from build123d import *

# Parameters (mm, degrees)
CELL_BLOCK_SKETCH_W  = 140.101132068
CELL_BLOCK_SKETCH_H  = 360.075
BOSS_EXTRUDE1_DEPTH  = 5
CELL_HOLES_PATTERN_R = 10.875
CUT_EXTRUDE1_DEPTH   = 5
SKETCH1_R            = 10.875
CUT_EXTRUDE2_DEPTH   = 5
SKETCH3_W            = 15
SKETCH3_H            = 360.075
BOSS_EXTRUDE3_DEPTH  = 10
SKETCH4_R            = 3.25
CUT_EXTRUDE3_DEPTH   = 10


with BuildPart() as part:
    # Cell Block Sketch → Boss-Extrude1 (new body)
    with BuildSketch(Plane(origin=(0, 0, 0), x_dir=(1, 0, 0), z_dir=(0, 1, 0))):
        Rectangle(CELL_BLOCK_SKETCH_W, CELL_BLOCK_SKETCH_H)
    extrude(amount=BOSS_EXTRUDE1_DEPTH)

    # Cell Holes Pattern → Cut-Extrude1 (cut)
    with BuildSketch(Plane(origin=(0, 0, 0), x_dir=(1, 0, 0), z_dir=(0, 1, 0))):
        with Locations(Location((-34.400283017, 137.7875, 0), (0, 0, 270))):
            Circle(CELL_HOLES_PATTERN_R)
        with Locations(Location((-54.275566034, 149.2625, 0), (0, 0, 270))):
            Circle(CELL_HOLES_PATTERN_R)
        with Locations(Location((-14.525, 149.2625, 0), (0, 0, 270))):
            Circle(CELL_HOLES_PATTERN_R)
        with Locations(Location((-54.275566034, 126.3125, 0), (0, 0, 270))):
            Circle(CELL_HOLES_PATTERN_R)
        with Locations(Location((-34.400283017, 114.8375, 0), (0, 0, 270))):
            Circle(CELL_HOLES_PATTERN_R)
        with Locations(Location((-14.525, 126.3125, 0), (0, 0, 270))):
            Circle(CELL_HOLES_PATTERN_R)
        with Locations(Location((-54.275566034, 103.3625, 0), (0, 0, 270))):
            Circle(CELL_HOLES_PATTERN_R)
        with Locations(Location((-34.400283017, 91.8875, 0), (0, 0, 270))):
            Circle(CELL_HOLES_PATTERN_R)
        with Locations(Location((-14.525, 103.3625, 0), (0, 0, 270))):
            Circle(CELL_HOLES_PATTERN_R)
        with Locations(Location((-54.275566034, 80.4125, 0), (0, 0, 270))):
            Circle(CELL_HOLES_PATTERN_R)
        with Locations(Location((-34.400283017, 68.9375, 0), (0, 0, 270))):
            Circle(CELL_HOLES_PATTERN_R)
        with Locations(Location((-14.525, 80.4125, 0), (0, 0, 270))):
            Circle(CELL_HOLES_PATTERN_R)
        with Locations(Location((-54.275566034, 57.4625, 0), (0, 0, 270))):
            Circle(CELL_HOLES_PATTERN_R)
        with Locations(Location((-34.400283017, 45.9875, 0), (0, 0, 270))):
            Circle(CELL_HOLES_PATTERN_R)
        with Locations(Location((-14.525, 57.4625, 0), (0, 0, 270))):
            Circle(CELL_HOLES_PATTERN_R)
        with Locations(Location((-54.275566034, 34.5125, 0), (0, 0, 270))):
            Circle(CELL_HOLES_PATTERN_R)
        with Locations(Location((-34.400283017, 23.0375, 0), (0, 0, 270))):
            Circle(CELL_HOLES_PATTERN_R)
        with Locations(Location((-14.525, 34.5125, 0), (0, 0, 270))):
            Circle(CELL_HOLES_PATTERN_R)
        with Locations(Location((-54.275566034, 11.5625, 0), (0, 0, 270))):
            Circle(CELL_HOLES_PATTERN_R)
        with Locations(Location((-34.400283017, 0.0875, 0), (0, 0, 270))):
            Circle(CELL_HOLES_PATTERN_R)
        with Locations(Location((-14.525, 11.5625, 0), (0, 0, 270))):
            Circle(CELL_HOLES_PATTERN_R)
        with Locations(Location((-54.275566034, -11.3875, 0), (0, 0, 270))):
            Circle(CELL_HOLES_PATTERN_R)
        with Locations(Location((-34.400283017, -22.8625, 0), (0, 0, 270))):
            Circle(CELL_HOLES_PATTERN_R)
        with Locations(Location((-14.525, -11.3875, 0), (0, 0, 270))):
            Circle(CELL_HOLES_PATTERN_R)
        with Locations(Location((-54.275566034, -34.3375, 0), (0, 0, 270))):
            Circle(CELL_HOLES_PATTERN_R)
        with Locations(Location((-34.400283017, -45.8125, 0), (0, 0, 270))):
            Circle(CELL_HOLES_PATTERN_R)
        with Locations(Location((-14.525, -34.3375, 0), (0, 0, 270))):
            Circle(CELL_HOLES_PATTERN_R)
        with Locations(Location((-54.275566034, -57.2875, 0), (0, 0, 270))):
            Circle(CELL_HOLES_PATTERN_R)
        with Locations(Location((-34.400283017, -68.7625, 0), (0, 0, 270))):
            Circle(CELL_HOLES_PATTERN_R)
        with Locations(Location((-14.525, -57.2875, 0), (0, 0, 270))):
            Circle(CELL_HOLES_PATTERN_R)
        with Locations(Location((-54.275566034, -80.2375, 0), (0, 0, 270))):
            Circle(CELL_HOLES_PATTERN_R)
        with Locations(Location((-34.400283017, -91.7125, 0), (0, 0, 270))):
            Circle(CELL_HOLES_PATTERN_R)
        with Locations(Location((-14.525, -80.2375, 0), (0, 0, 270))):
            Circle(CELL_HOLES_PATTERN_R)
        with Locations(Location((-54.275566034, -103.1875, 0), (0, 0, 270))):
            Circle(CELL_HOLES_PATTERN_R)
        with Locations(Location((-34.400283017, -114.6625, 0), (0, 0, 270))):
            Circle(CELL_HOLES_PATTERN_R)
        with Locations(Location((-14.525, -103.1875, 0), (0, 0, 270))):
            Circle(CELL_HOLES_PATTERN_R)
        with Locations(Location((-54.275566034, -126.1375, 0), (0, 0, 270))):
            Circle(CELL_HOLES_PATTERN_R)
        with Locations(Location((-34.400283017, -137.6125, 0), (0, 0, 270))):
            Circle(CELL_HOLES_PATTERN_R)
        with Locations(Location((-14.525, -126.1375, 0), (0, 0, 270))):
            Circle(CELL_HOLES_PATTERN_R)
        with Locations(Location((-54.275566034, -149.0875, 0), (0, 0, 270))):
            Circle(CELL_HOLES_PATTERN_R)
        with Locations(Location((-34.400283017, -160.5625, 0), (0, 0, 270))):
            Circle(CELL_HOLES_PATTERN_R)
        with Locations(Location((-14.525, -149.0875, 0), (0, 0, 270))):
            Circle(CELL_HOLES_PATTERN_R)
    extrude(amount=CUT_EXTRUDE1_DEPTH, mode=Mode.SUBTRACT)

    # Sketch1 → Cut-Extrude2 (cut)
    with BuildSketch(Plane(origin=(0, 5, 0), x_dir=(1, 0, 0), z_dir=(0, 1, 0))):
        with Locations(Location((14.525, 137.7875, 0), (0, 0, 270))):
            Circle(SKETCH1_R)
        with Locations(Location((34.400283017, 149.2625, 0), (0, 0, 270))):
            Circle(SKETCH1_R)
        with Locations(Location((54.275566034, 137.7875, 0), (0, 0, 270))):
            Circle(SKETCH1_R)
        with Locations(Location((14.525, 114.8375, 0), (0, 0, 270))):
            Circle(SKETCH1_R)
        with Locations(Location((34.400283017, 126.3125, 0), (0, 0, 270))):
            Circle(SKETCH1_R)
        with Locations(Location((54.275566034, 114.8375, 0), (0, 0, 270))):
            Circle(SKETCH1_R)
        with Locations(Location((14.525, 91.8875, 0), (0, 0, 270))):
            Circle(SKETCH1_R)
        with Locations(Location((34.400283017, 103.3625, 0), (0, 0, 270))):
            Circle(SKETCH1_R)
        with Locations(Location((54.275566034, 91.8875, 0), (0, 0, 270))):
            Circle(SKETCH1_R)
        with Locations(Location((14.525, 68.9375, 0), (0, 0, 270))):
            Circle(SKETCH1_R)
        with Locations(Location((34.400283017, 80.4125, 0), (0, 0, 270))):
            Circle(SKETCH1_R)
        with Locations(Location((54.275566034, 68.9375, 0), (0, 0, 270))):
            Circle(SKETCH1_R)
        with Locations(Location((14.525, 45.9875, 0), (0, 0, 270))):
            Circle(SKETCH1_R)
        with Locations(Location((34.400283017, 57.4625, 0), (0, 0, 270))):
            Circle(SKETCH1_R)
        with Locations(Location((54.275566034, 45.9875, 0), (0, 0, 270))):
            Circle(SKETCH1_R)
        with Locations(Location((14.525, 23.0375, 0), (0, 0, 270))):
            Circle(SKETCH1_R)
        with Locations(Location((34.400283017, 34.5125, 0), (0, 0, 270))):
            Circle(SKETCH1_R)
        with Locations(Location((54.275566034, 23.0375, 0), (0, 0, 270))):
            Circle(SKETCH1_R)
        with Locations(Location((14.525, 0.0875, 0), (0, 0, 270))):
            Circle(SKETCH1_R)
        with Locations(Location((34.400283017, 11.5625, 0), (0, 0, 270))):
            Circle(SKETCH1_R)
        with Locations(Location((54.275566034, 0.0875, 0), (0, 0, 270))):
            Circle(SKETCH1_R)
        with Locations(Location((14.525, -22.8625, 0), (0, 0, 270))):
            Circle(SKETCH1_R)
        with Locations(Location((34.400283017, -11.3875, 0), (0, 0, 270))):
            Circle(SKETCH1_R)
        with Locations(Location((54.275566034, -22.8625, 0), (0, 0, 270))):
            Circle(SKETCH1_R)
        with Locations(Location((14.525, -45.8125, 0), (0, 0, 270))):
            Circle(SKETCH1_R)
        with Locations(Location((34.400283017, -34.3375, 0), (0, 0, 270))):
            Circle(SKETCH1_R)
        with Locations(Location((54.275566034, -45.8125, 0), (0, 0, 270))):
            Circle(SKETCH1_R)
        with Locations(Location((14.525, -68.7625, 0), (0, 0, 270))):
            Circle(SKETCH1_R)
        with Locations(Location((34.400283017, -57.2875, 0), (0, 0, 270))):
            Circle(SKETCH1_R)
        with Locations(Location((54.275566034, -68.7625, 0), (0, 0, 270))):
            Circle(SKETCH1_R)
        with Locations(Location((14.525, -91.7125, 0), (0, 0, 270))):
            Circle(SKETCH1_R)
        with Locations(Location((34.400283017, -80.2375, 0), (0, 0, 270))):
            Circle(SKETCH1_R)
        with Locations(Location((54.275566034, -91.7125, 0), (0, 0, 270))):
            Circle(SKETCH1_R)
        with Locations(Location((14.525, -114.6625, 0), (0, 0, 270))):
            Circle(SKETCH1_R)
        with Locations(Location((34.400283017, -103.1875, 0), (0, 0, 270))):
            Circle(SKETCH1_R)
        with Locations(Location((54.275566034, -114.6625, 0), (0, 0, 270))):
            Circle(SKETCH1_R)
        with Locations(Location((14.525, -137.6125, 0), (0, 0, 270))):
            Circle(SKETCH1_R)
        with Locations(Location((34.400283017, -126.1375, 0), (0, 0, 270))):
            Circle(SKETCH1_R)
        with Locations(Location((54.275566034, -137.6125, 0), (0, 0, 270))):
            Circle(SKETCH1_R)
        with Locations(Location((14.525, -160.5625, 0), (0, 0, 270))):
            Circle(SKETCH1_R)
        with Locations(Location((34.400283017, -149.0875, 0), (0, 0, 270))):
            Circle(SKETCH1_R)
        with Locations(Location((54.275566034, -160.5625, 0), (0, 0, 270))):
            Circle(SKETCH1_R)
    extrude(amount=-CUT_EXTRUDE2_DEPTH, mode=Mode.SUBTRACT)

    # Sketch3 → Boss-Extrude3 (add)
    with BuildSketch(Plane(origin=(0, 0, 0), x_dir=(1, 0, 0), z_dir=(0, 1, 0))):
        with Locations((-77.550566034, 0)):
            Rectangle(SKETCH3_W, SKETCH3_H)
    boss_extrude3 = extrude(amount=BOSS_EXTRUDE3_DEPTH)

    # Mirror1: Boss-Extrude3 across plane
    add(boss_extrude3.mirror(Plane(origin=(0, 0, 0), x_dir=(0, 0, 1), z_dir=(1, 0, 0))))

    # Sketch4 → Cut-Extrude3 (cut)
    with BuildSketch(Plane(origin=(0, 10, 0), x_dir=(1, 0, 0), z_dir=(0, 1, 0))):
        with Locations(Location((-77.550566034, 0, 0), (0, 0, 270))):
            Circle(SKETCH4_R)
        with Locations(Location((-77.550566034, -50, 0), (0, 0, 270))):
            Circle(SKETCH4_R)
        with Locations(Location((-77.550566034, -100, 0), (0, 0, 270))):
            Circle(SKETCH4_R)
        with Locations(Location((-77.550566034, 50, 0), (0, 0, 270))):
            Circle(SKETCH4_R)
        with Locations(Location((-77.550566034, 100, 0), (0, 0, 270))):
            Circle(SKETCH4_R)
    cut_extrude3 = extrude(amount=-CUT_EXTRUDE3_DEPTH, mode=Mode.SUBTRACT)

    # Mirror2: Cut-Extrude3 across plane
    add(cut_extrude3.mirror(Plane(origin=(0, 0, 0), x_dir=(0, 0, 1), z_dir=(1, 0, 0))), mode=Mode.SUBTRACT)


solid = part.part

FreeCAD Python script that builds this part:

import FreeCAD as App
import Part
import Sketcher

V = App.Vector
Q = App.Units.Quantity


def add_polygon(sketch, points):
    """Adds a closed chain of lines whose ends are joined by coincident constraints."""
    first, n = sketch.GeometryCount, len(points)
    for a, b in zip(points, points[1:] + points[:1]):
        sketch.addGeometry(Part.LineSegment(App.Vector(*a, 0), App.Vector(*b, 0)), False)
    for i in range(n):
        sketch.addConstraint(Sketcher.Constraint("Coincident", first + i, 2, first + (i + 1) % n, 1))

doc = App.newDocument("Part")
body = doc.addObject("PartDesign::Body", "Body")

sketch1 = body.newObject("Sketcher::SketchObject", "Sketch")
sketch1.AttachmentSupport = (doc.getObject("XZ_Plane"), [""])
sketch1.MapMode = "FlatFace"
add_polygon(sketch1, [(-70, -180), (-70, 180), (70, 180), (70, -180)])
sketch1.addConstraint([
    Sketcher.Constraint("Vertical", 0),
    Sketcher.Constraint("Horizontal", 1),
    Sketcher.Constraint("Vertical", 2),
    Sketcher.Constraint("Horizontal", 3),
    Sketcher.Constraint("Symmetric", 0, 2, 2, 2, -1, 1),
    Sketcher.Constraint("DistanceY", 0, 1, 0, 2, Q("360.075 mm")),
    Sketcher.Constraint("DistanceX", 1, 1, 1, 2, Q("140.101132 mm")),
])
pad1 = body.newObject("PartDesign::Pad", "Pad")
pad1.Profile = sketch1
pad1.Length = 5
pad1.Reversed = True

sketch2 = body.newObject("Sketcher::SketchObject", "Sketch001")
sketch2.AttachmentSupport = (doc.getObject("XZ_Plane"), [""])
sketch2.MapMode = "FlatFace"
sketch2.addGeometry([
    Part.Circle(V(-34, -138, 0), V(0, 0, 1), 11),
    Part.Circle(V(-54, -149, 0), V(0, 0, 1), 11),
    Part.Circle(V(-15, -149, 0), V(0, 0, 1), 11),
    Part.Circle(V(-54, -126, 0), V(0, 0, 1), 11),
    Part.Circle(V(-34, -115, 0), V(0, 0, 1), 11),
    Part.Circle(V(-15, -126, 0), V(0, 0, 1), 11),
    Part.Circle(V(-54, -103, 0), V(0, 0, 1), 11),
    Part.Circle(V(-34, -92, 0), V(0, 0, 1), 11),
    Part.Circle(V(-15, -103, 0), V(0, 0, 1), 11),
    Part.Circle(V(-54, -80, 0), V(0, 0, 1), 11),
    Part.Circle(V(-34, -69, 0), V(0, 0, 1), 11),
    Part.Circle(V(-15, -80, 0), V(0, 0, 1), 11),
    Part.Circle(V(-54, -57, 0), V(0, 0, 1), 11),
    Part.Circle(V(-34, -46, 0), V(0, 0, 1), 11),
    Part.Circle(V(-15, -57, 0), V(0, 0, 1), 11),
    Part.Circle(V(-54, -35, 0), V(0, 0, 1), 11),
    Part.Circle(V(-34, -23, 0), V(0, 0, 1), 11),
    Part.Circle(V(-15, -35, 0), V(0, 0, 1), 11),
    Part.Circle(V(-54, -12, 0), V(0, 0, 1), 11),
    Part.Circle(V(-34, 0, 0), V(0, 0, 1), 11),
    Part.Circle(V(-15, -12, 0), V(0, 0, 1), 11),
    Part.Circle(V(-54, 11, 0), V(0, 0, 1), 11),
    Part.Circle(V(-34, 23, 0), V(0, 0, 1), 11),
    Part.Circle(V(-15, 11, 0), V(0, 0, 1), 11),
    Part.Circle(V(-54, 34, 0), V(0, 0, 1), 11),
    Part.Circle(V(-34, 46, 0), V(0, 0, 1), 11),
    Part.Circle(V(-15, 34, 0), V(0, 0, 1), 11),
    Part.Circle(V(-54, 57, 0), V(0, 0, 1), 11),
    Part.Circle(V(-34, 69, 0), V(0, 0, 1), 11),
    Part.Circle(V(-15, 57, 0), V(0, 0, 1), 11),
    Part.Circle(V(-54, 80, 0), V(0, 0, 1), 11),
    Part.Circle(V(-34, 92, 0), V(0, 0, 1), 11),
    Part.Circle(V(-15, 80, 0), V(0, 0, 1), 11),
    Part.Circle(V(-54, 103, 0), V(0, 0, 1), 11),
    Part.Circle(V(-34, 115, 0), V(0, 0, 1), 11),
    Part.Circle(V(-15, 103, 0), V(0, 0, 1), 11),
    Part.Circle(V(-54, 126, 0), V(0, 0, 1), 11),
    Part.Circle(V(-34, 138, 0), V(0, 0, 1), 11),
    Part.Circle(V(-15, 126, 0), V(0, 0, 1), 11),
    Part.Circle(V(-54, 149, 0), V(0, 0, 1), 11),
    Part.Circle(V(-34, 161, 0), V(0, 0, 1), 11),
    Part.Circle(V(-15, 149, 0), V(0, 0, 1), 11),
], False)
sketch2.addConstraint([
    Sketcher.Constraint("Equal", 0, 1),
    Sketcher.Constraint("Equal", 1, 2),
    Sketcher.Constraint("Equal", 2, 3),
    Sketcher.Constraint("Equal", 3, 4),
    Sketcher.Constraint("Equal", 4, 5),
    Sketcher.Constraint("Equal", 5, 6),
    Sketcher.Constraint("Equal", 6, 7),
    Sketcher.Constraint("Equal", 7, 8),
    Sketcher.Constraint("Equal", 8, 9),
    Sketcher.Constraint("Equal", 9, 10),
    Sketcher.Constraint("Equal", 10, 11),
    Sketcher.Constraint("Equal", 11, 12),
    Sketcher.Constraint("Equal", 12, 13),
    Sketcher.Constraint("Equal", 13, 14),
    Sketcher.Constraint("Equal", 14, 15),
    Sketcher.Constraint("Equal", 15, 16),
    Sketcher.Constraint("Equal", 16, 17),
    Sketcher.Constraint("Equal", 17, 18),
    Sketcher.Constraint("Equal", 18, 19),
    Sketcher.Constraint("Equal", 19, 20),
    Sketcher.Constraint("Equal", 20, 21),
    Sketcher.Constraint("Equal", 21, 22),
    Sketcher.Constraint("Equal", 22, 23),
    Sketcher.Constraint("Equal", 23, 24),
    Sketcher.Constraint("Equal", 24, 25),
    Sketcher.Constraint("Equal", 25, 26),
    Sketcher.Constraint("Equal", 26, 27),
    Sketcher.Constraint("Equal", 27, 28),
    Sketcher.Constraint("Equal", 28, 29),
    Sketcher.Constraint("Equal", 29, 30),
    Sketcher.Constraint("Equal", 30, 31),
    Sketcher.Constraint("Equal", 31, 32),
    Sketcher.Constraint("Equal", 32, 33),
    Sketcher.Constraint("Equal", 33, 34),
    Sketcher.Constraint("Equal", 34, 35),
    Sketcher.Constraint("Equal", 35, 36),
    Sketcher.Constraint("Equal", 36, 37),
    Sketcher.Constraint("Equal", 37, 38),
    Sketcher.Constraint("Equal", 38, 39),
    Sketcher.Constraint("Equal", 39, 40),
    Sketcher.Constraint("Equal", 40, 41),
    Sketcher.Constraint("Horizontal", 1, 3, 2, 3),
    Sketcher.Constraint("Horizontal", 3, 3, 5, 3),
    Sketcher.Constraint("Horizontal", 6, 3, 8, 3),
    Sketcher.Constraint("Horizontal", 9, 3, 11, 3),
    Sketcher.Constraint("Horizontal", 12, 3, 14, 3),
    Sketcher.Constraint("Horizontal", 15, 3, 17, 3),
    Sketcher.Constraint("Horizontal", 18, 3, 20, 3),
    Sketcher.Constraint("Horizontal", 21, 3, 23, 3),
    Sketcher.Constraint("Horizontal", 24, 3, 26, 3),
    Sketcher.Constraint("Horizontal", 27, 3, 29, 3),
    Sketcher.Constraint("Horizontal", 30, 3, 32, 3),
    Sketcher.Constraint("Horizontal", 33, 3, 35, 3),
    Sketcher.Constraint("Horizontal", 36, 3, 38, 3),
    Sketcher.Constraint("Horizontal", 39, 3, 41, 3),
    Sketcher.Constraint("Vertical", 1, 3, 3, 3),
    Sketcher.Constraint("Vertical", 0, 3, 4, 3),
    Sketcher.Constraint("Vertical", 2, 3, 5, 3),
    Sketcher.Constraint("Vertical", 3, 3, 6, 3),
    Sketcher.Constraint("Vertical", 4, 3, 7, 3),
    Sketcher.Constraint("Vertical", 5, 3, 8, 3),
    Sketcher.Constraint("Vertical", 6, 3, 9, 3),
    Sketcher.Constraint("Vertical", 7, 3, 10, 3),
    Sketcher.Constraint("Vertical", 8, 3, 11, 3),
    Sketcher.Constraint("Vertical", 9, 3, 12, 3),
    Sketcher.Constraint("Vertical", 10, 3, 13, 3),
    Sketcher.Constraint("Vertical", 11, 3, 14, 3),
    Sketcher.Constraint("Vertical", 12, 3, 15, 3),
    Sketcher.Constraint("Vertical", 13, 3, 16, 3),
    Sketcher.Constraint("Vertical", 14, 3, 17, 3),
    Sketcher.Constraint("Vertical", 15, 3, 18, 3),
    Sketcher.Constraint("Vertical", 16, 3, 19, 3),
    Sketcher.Constraint("Vertical", 17, 3, 20, 3),
    Sketcher.Constraint("Vertical", 18, 3, 21, 3),
    Sketcher.Constraint("Vertical", 19, 3, 22, 3),
    Sketcher.Constraint("Vertical", 20, 3, 23, 3),
    Sketcher.Constraint("Vertical", 21, 3, 24, 3),
    Sketcher.Constraint("Vertical", 22, 3, 25, 3),
    Sketcher.Constraint("Vertical", 23, 3, 26, 3),
    Sketcher.Constraint("Vertical", 24, 3, 27, 3),
    Sketcher.Constraint("Vertical", 25, 3, 28, 3),
    Sketcher.Constraint("Vertical", 26, 3, 29, 3),
    Sketcher.Constraint("Vertical", 27, 3, 30, 3),
    Sketcher.Constraint("Vertical", 28, 3, 31, 3),
    Sketcher.Constraint("Vertical", 29, 3, 32, 3),
    Sketcher.Constraint("Vertical", 30, 3, 33, 3),
    Sketcher.Constraint("Vertical", 31, 3, 34, 3),
    Sketcher.Constraint("Vertical", 32, 3, 35, 3),
    Sketcher.Constraint("Vertical", 33, 3, 36, 3),
    Sketcher.Constraint("Vertical", 34, 3, 37, 3),
    Sketcher.Constraint("Vertical", 35, 3, 38, 3),
    Sketcher.Constraint("Vertical", 36, 3, 39, 3),
    Sketcher.Constraint("Vertical", 37, 3, 40, 3),
    Sketcher.Constraint("Vertical", 38, 3, 41, 3),
    Sketcher.Constraint("Diameter", 0, Q("21.75 mm")),
    Sketcher.Constraint("DistanceY", 1, 3, 6, 3, Q("45.9 mm")),
    Sketcher.Constraint("DistanceY", 0, 3, 7, 3, Q("45.9 mm")),
    Sketcher.Constraint("DistanceY", 3, 3, 9, 3, Q("45.9 mm")),
    Sketcher.Constraint("DistanceY", 4, 3, 10, 3, Q("45.9 mm")),
    Sketcher.Constraint("DistanceY", 6, 3, 12, 3, Q("45.9 mm")),
    Sketcher.Constraint("DistanceY", 7, 3, 13, 3, Q("45.9 mm")),
    Sketcher.Constraint("DistanceY", 9, 3, 15, 3, Q("45.9 mm")),
    Sketcher.Constraint("DistanceY", 10, 3, 16, 3, Q("45.9 mm")),
    Sketcher.Constraint("DistanceY", 12, 3, 18, 3, Q("45.9 mm")),
    Sketcher.Constraint("DistanceY", 13, 3, 19, 3, Q("45.9 mm")),
    Sketcher.Constraint("DistanceY", 15, 3, 21, 3, Q("45.9 mm")),
    Sketcher.Constraint("DistanceY", 16, 3, 22, 3, Q("45.9 mm")),
    Sketcher.Constraint("DistanceY", 18, 3, 24, 3, Q("45.9 mm")),
    Sketcher.Constraint("DistanceY", 19, 3, 25, 3, Q("45.9 mm")),
    Sketcher.Constraint("DistanceY", 21, 3, 27, 3, Q("45.9 mm")),
    Sketcher.Constraint("DistanceY", 22, 3, 28, 3, Q("45.9 mm")),
    Sketcher.Constraint("DistanceY", 24, 3, 30, 3, Q("45.9 mm")),
    Sketcher.Constraint("DistanceY", 25, 3, 31, 3, Q("45.9 mm")),
    Sketcher.Constraint("DistanceY", 27, 3, 33, 3, Q("45.9 mm")),
    Sketcher.Constraint("DistanceY", 28, 3, 34, 3, Q("45.9 mm")),
    Sketcher.Constraint("DistanceY", 30, 3, 36, 3, Q("45.9 mm")),
    Sketcher.Constraint("DistanceY", 31, 3, 37, 3, Q("45.9 mm")),
    Sketcher.Constraint("DistanceY", 33, 3, 39, 3, Q("45.9 mm")),
    Sketcher.Constraint("DistanceY", 34, 3, 40, 3, Q("45.9 mm")),
    Sketcher.Constraint("DistanceY", 1, 3, 3, 3, Q("22.95 mm")),
    Sketcher.Constraint("DistanceY", 0, 3, 4, 3, Q("22.95 mm")),
    Sketcher.Constraint("DistanceX", 2, 3, -1, 1, Q("14.525 mm")),
    Sketcher.Constraint("DistanceY", 1, 3, 0, 3, Q("11.475 mm")),
    Sketcher.Constraint("DistanceY", 0, 3, -1, 1, Q("137.7875 mm")),
    Sketcher.Constraint("DistanceX", 0, 3, -1, 1, Q("34.400283 mm")),
    Sketcher.Constraint("DistanceX", 1, 3, -1, 1, Q("54.275566 mm")),
])
pocket1 = body.newObject("PartDesign::Pocket", "Pocket")
pocket1.Profile = sketch2
pocket1.Length = 5

sketch3 = body.newObject("Sketcher::SketchObject", "Sketch002")
sketch3.AttachmentSupport = (doc.getObject("XZ_Plane"), [""])
sketch3.MapMode = "FlatFace"
sketch3.AttachmentOffset = App.Placement(V(0, 0, -5), App.Rotation())
sketch3.addGeometry([
    Part.Circle(V(15, -138, 0), V(0, 0, 1), 11),
    Part.Circle(V(34, -149, 0), V(0, 0, 1), 11),
    Part.Circle(V(54, -138, 0), V(0, 0, 1), 11),
    Part.Circle(V(15, -115, 0), V(0, 0, 1), 11),
    Part.Circle(V(34, -126, 0), V(0, 0, 1), 11),
    Part.Circle(V(54, -115, 0), V(0, 0, 1), 11),
    Part.Circle(V(15, -92, 0), V(0, 0, 1), 11),
    Part.Circle(V(34, -103, 0), V(0, 0, 1), 11),
    Part.Circle(V(54, -92, 0), V(0, 0, 1), 11),
    Part.Circle(V(15, -69, 0), V(0, 0, 1), 11),
    Part.Circle(V(34, -80, 0), V(0, 0, 1), 11),
    Part.Circle(V(54, -69, 0), V(0, 0, 1), 11),
    Part.Circle(V(15, -46, 0), V(0, 0, 1), 11),
    Part.Circle(V(34, -57, 0), V(0, 0, 1), 11),
    Part.Circle(V(54, -46, 0), V(0, 0, 1), 11),
    Part.Circle(V(15, -23, 0), V(0, 0, 1), 11),
    Part.Circle(V(34, -35, 0), V(0, 0, 1), 11),
    Part.Circle(V(54, -23, 0), V(0, 0, 1), 11),
    Part.Circle(V(15, 0, 0), V(0, 0, 1), 11),
    Part.Circle(V(34, -12, 0), V(0, 0, 1), 11),
    Part.Circle(V(54, 0, 0), V(0, 0, 1), 11),
    Part.Circle(V(15, 23, 0), V(0, 0, 1), 11),
    Part.Circle(V(34, 11, 0), V(0, 0, 1), 11),
    Part.Circle(V(54, 23, 0), V(0, 0, 1), 11),
    Part.Circle(V(15, 46, 0), V(0, 0, 1), 11),
    Part.Circle(V(34, 34, 0), V(0, 0, 1), 11),
    Part.Circle(V(54, 46, 0), V(0, 0, 1), 11),
    Part.Circle(V(15, 69, 0), V(0, 0, 1), 11),
    Part.Circle(V(34, 57, 0), V(0, 0, 1), 11),
    Part.Circle(V(54, 69, 0), V(0, 0, 1), 11),
    Part.Circle(V(15, 92, 0), V(0, 0, 1), 11),
    Part.Circle(V(34, 80, 0), V(0, 0, 1), 11),
    Part.Circle(V(54, 92, 0), V(0, 0, 1), 11),
    Part.Circle(V(15, 115, 0), V(0, 0, 1), 11),
    Part.Circle(V(34, 103, 0), V(0, 0, 1), 11),
    Part.Circle(V(54, 115, 0), V(0, 0, 1), 11),
    Part.Circle(V(15, 138, 0), V(0, 0, 1), 11),
    Part.Circle(V(34, 126, 0), V(0, 0, 1), 11),
    Part.Circle(V(54, 138, 0), V(0, 0, 1), 11),
    Part.Circle(V(15, 161, 0), V(0, 0, 1), 11),
    Part.Circle(V(34, 149, 0), V(0, 0, 1), 11),
    Part.Circle(V(54, 161, 0), V(0, 0, 1), 11),
], False)
sketch3.addConstraint([
    Sketcher.Constraint("Equal", 0, 1),
    Sketcher.Constraint("Equal", 1, 2),
    Sketcher.Constraint("Equal", 2, 3),
    Sketcher.Constraint("Equal", 3, 4),
    Sketcher.Constraint("Equal", 4, 5),
    Sketcher.Constraint("Equal", 5, 6),
    Sketcher.Constraint("Equal", 6, 7),
    Sketcher.Constraint("Equal", 7, 8),
    Sketcher.Constraint("Equal", 8, 9),
    Sketcher.Constraint("Equal", 9, 10),
    Sketcher.Constraint("Equal", 10, 11),
    Sketcher.Constraint("Equal", 11, 12),
    Sketcher.Constraint("Equal", 12, 13),
    Sketcher.Constraint("Equal", 13, 14),
    Sketcher.Constraint("Equal", 14, 15),
    Sketcher.Constraint("Equal", 15, 16),
    Sketcher.Constraint("Equal", 16, 17),
    Sketcher.Constraint("Equal", 17, 18),
    Sketcher.Constraint("Equal", 18, 19),
    Sketcher.Constraint("Equal", 19, 20),
    Sketcher.Constraint("Equal", 20, 21),
    Sketcher.Constraint("Equal", 21, 22),
    Sketcher.Constraint("Equal", 22, 23),
    Sketcher.Constraint("Equal", 23, 24),
    Sketcher.Constraint("Equal", 24, 25),
    Sketcher.Constraint("Equal", 25, 26),
    Sketcher.Constraint("Equal", 26, 27),
    Sketcher.Constraint("Equal", 27, 28),
    Sketcher.Constraint("Equal", 28, 29),
    Sketcher.Constraint("Equal", 29, 30),
    Sketcher.Constraint("Equal", 30, 31),
    Sketcher.Constraint("Equal", 31, 32),
    Sketcher.Constraint("Equal", 32, 33),
    Sketcher.Constraint("Equal", 33, 34),
    Sketcher.Constraint("Equal", 34, 35),
    Sketcher.Constraint("Equal", 35, 36),
    Sketcher.Constraint("Equal", 36, 37),
    Sketcher.Constraint("Equal", 37, 38),
    Sketcher.Constraint("Equal", 38, 39),
    Sketcher.Constraint("Equal", 39, 40),
    Sketcher.Constraint("Equal", 40, 41),
    Sketcher.Constraint("Horizontal", 0, 3, 2, 3),
    Sketcher.Constraint("Horizontal", 3, 3, 5, 3),
    Sketcher.Constraint("Horizontal", 6, 3, 8, 3),
    Sketcher.Constraint("Horizontal", 9, 3, 11, 3),
    Sketcher.Constraint("Horizontal", 12, 3, 14, 3),
    Sketcher.Constraint("Horizontal", 15, 3, 17, 3),
    Sketcher.Constraint("Horizontal", 18, 3, 20, 3),
    Sketcher.Constraint("Horizontal", 21, 3, 23, 3),
    Sketcher.Constraint("Horizontal", 24, 3, 26, 3),
    Sketcher.Constraint("Horizontal", 27, 3, 29, 3),
    Sketcher.Constraint("Horizontal", 30, 3, 32, 3),
    Sketcher.Constraint("Horizontal", 33, 3, 35, 3),
    Sketcher.Constraint("Horizontal", 36, 3, 38, 3),
    Sketcher.Constraint("Horizontal", 39, 3, 41, 3),
    Sketcher.Constraint("Vertical", 0, 3, 3, 3),
    Sketcher.Constraint("Vertical", 1, 3, 4, 3),
    Sketcher.Constraint("Vertical", 2, 3, 5, 3),
    Sketcher.Constraint("Vertical", 3, 3, 6, 3),
    Sketcher.Constraint("Vertical", 4, 3, 7, 3),
    Sketcher.Constraint("Vertical", 5, 3, 8, 3),
    Sketcher.Constraint("Vertical", 6, 3, 9, 3),
    Sketcher.Constraint("Vertical", 7, 3, 10, 3),
    Sketcher.Constraint("Vertical", 8, 3, 11, 3),
    Sketcher.Constraint("Vertical", 9, 3, 12, 3),
    Sketcher.Constraint("Vertical", 10, 3, 13, 3),
    Sketcher.Constraint("Vertical", 11, 3, 14, 3),
    Sketcher.Constraint("Vertical", 12, 3, 15, 3),
    Sketcher.Constraint("Vertical", 13, 3, 16, 3),
    Sketcher.Constraint("Vertical", 14, 3, 17, 3),
    Sketcher.Constraint("Vertical", 15, 3, 18, 3),
    Sketcher.Constraint("Vertical", 16, 3, 19, 3),
    Sketcher.Constraint("Vertical", 17, 3, 20, 3),
    Sketcher.Constraint("Vertical", 18, 3, 21, 3),
    Sketcher.Constraint("Vertical", 19, 3, 22, 3),
    Sketcher.Constraint("Vertical", 20, 3, 23, 3),
    Sketcher.Constraint("Vertical", 21, 3, 24, 3),
    Sketcher.Constraint("Vertical", 22, 3, 25, 3),
    Sketcher.Constraint("Vertical", 23, 3, 26, 3),
    Sketcher.Constraint("Vertical", 24, 3, 27, 3),
    Sketcher.Constraint("Vertical", 25, 3, 28, 3),
    Sketcher.Constraint("Vertical", 26, 3, 29, 3),
    Sketcher.Constraint("Vertical", 27, 3, 30, 3),
    Sketcher.Constraint("Vertical", 28, 3, 31, 3),
    Sketcher.Constraint("Vertical", 29, 3, 32, 3),
    Sketcher.Constraint("Vertical", 30, 3, 33, 3),
    Sketcher.Constraint("Vertical", 31, 3, 34, 3),
    Sketcher.Constraint("Vertical", 32, 3, 35, 3),
    Sketcher.Constraint("Vertical", 33, 3, 36, 3),
    Sketcher.Constraint("Vertical", 34, 3, 37, 3),
    Sketcher.Constraint("Vertical", 35, 3, 38, 3),
    Sketcher.Constraint("Vertical", 36, 3, 39, 3),
    Sketcher.Constraint("Vertical", 37, 3, 40, 3),
    Sketcher.Constraint("Vertical", 38, 3, 41, 3),
    Sketcher.Constraint("Diameter", 0, Q("21.75 mm")),
    Sketcher.Constraint("DistanceY", 0, 3, 6, 3, Q("45.9 mm")),
    Sketcher.Constraint("DistanceY", 3, 3, 9, 3, Q("45.9 mm")),
    Sketcher.Constraint("DistanceY", 6, 3, 12, 3, Q("45.9 mm")),
    Sketcher.Constraint("DistanceY", 9, 3, 15, 3, Q("45.9 mm")),
    Sketcher.Constraint("DistanceY", 12, 3, 18, 3, Q("45.9 mm")),
    Sketcher.Constraint("DistanceY", 15, 3, 21, 3, Q("45.9 mm")),
    Sketcher.Constraint("DistanceY", 18, 3, 24, 3, Q("45.9 mm")),
    Sketcher.Constraint("DistanceY", 21, 3, 27, 3, Q("45.9 mm")),
    Sketcher.Constraint("DistanceY", 24, 3, 30, 3, Q("45.9 mm")),
    Sketcher.Constraint("DistanceY", 27, 3, 33, 3, Q("45.9 mm")),
    Sketcher.Constraint("DistanceY", 30, 3, 36, 3, Q("45.9 mm")),
    Sketcher.Constraint("DistanceY", 33, 3, 39, 3, Q("45.9 mm")),
    Sketcher.Constraint("DistanceY", 0, 3, 3, 3, Q("22.95 mm")),
    Sketcher.Constraint("DistanceY", 1, 3, 4, 3, Q("22.95 mm")),
    Sketcher.Constraint("DistanceY", 4, 3, 7, 3, Q("22.95 mm")),
    Sketcher.Constraint("DistanceY", 7, 3, 10, 3, Q("22.95 mm")),
    Sketcher.Constraint("DistanceY", 10, 3, 13, 3, Q("22.95 mm")),
    Sketcher.Constraint("DistanceY", 13, 3, 16, 3, Q("22.95 mm")),
    Sketcher.Constraint("DistanceY", 16, 3, 19, 3, Q("22.95 mm")),
    Sketcher.Constraint("DistanceY", 19, 3, 22, 3, Q("22.95 mm")),
    Sketcher.Constraint("DistanceY", 22, 3, 25, 3, Q("22.95 mm")),
    Sketcher.Constraint("DistanceY", 25, 3, 28, 3, Q("22.95 mm")),
    Sketcher.Constraint("DistanceY", 28, 3, 31, 3, Q("22.95 mm")),
    Sketcher.Constraint("DistanceY", 31, 3, 34, 3, Q("22.95 mm")),
    Sketcher.Constraint("DistanceY", 34, 3, 37, 3, Q("22.95 mm")),
    Sketcher.Constraint("DistanceY", 37, 3, 40, 3, Q("22.95 mm")),
    Sketcher.Constraint("DistanceX", -1, 1, 0, 3, Q("14.525 mm")),
    Sketcher.Constraint("DistanceY", 1, 3, 0, 3, Q("11.475 mm")),
    Sketcher.Constraint("DistanceY", 0, 3, -1, 1, Q("137.7875 mm")),
    Sketcher.Constraint("DistanceX", -1, 1, 1, 3, Q("34.400283 mm")),
    Sketcher.Constraint("DistanceX", -1, 1, 2, 3, Q("54.275566 mm")),
])
pocket2 = body.newObject("PartDesign::Pocket", "Pocket001")
pocket2.Profile = sketch3
pocket2.Length = 5
pocket2.Reversed = True

sketch4 = body.newObject("Sketcher::SketchObject", "Sketch003")
sketch4.AttachmentSupport = (doc.getObject("XZ_Plane"), [""])
sketch4.MapMode = "FlatFace"
add_polygon(sketch4, [(-85, -180), (-85, 180), (-70, 180), (-70, -180)])
sketch4.addConstraint([
    Sketcher.Constraint("Vertical", 0),
    Sketcher.Constraint("Horizontal", 1),
    Sketcher.Constraint("Vertical", 2),
    Sketcher.Constraint("Horizontal", 3),
    Sketcher.Constraint("DistanceX", 1, 1, 1, 2, Q("15 mm")),
    Sketcher.Constraint("DistanceY", 0, 1, 0, 2, Q("360.075 mm")),
    Sketcher.Constraint("DistanceY", -1, 1, 0, 2, Q("180.0375 mm")),
    Sketcher.Constraint("DistanceX", 0, 2, -1, 1, Q("85.050566 mm")),
])
pad2 = body.newObject("PartDesign::Pad", "Pad001")
pad2.Profile = sketch4
pad2.Length = 10
pad2.Reversed = True
doc.recompute()

mirrored = body.newObject("PartDesign::Mirrored", "Mirrored")
mirrored.Originals = [pad2]
mirrored.MirrorPlane = (doc.getObject("YZ_Plane"), [""])
body.Tip = mirrored

sketch5 = body.newObject("Sketcher::SketchObject", "Sketch004")
sketch5.AttachmentSupport = (doc.getObject("XZ_Plane"), [""])
sketch5.MapMode = "FlatFace"
sketch5.AttachmentOffset = App.Placement(V(0, 0, -10), App.Rotation())
sketch5.addGeometry([
    Part.Circle(V(-77.6, 0, 0), V(0, 0, 1), 3.2),
    Part.Circle(V(-77.6, 50, 0), V(0, 0, 1), 3.2),
    Part.Circle(V(-77.6, 100, 0), V(0, 0, 1), 3.2),
    Part.Circle(V(-77.6, -50, 0), V(0, 0, 1), 3.2),
    Part.Circle(V(-77.6, -100, 0), V(0, 0, 1), 3.2),
], False)
sketch5.addConstraint([
    Sketcher.Constraint("Equal", 0, 1),
    Sketcher.Constraint("Equal", 1, 2),
    Sketcher.Constraint("Equal", 2, 3),
    Sketcher.Constraint("Equal", 3, 4),
    Sketcher.Constraint("Symmetric", 1, 3, 3, 3, -1),
    Sketcher.Constraint("Symmetric", 2, 3, 4, 3, -1),
    Sketcher.Constraint("PointOnObject", 0, 3, -1),
    Sketcher.Constraint("Vertical", 0, 3, 1, 3),
    Sketcher.Constraint("Vertical", 1, 3, 2, 3),
    Sketcher.Constraint("Diameter", 0, Q("6.5 mm")),
    Sketcher.Constraint("DistanceY", -1, 1, 1, 3, Q("50 mm")),
    Sketcher.Constraint("DistanceY", -1, 1, 2, 3, Q("100 mm")),
    Sketcher.Constraint("DistanceX", 0, 3, -1, 1, Q("77.550566 mm")),
])
pocket3 = body.newObject("PartDesign::Pocket", "Pocket002")
pocket3.Profile = sketch5
pocket3.Length = 10
pocket3.Reversed = True
doc.recompute()

mirrored2 = body.newObject("PartDesign::Mirrored", "Mirrored001")
mirrored2.Originals = [pocket3]
mirrored2.MirrorPlane = (doc.getObject("YZ_Plane"), [""])
body.Tip = mirrored2

doc.recompute()
